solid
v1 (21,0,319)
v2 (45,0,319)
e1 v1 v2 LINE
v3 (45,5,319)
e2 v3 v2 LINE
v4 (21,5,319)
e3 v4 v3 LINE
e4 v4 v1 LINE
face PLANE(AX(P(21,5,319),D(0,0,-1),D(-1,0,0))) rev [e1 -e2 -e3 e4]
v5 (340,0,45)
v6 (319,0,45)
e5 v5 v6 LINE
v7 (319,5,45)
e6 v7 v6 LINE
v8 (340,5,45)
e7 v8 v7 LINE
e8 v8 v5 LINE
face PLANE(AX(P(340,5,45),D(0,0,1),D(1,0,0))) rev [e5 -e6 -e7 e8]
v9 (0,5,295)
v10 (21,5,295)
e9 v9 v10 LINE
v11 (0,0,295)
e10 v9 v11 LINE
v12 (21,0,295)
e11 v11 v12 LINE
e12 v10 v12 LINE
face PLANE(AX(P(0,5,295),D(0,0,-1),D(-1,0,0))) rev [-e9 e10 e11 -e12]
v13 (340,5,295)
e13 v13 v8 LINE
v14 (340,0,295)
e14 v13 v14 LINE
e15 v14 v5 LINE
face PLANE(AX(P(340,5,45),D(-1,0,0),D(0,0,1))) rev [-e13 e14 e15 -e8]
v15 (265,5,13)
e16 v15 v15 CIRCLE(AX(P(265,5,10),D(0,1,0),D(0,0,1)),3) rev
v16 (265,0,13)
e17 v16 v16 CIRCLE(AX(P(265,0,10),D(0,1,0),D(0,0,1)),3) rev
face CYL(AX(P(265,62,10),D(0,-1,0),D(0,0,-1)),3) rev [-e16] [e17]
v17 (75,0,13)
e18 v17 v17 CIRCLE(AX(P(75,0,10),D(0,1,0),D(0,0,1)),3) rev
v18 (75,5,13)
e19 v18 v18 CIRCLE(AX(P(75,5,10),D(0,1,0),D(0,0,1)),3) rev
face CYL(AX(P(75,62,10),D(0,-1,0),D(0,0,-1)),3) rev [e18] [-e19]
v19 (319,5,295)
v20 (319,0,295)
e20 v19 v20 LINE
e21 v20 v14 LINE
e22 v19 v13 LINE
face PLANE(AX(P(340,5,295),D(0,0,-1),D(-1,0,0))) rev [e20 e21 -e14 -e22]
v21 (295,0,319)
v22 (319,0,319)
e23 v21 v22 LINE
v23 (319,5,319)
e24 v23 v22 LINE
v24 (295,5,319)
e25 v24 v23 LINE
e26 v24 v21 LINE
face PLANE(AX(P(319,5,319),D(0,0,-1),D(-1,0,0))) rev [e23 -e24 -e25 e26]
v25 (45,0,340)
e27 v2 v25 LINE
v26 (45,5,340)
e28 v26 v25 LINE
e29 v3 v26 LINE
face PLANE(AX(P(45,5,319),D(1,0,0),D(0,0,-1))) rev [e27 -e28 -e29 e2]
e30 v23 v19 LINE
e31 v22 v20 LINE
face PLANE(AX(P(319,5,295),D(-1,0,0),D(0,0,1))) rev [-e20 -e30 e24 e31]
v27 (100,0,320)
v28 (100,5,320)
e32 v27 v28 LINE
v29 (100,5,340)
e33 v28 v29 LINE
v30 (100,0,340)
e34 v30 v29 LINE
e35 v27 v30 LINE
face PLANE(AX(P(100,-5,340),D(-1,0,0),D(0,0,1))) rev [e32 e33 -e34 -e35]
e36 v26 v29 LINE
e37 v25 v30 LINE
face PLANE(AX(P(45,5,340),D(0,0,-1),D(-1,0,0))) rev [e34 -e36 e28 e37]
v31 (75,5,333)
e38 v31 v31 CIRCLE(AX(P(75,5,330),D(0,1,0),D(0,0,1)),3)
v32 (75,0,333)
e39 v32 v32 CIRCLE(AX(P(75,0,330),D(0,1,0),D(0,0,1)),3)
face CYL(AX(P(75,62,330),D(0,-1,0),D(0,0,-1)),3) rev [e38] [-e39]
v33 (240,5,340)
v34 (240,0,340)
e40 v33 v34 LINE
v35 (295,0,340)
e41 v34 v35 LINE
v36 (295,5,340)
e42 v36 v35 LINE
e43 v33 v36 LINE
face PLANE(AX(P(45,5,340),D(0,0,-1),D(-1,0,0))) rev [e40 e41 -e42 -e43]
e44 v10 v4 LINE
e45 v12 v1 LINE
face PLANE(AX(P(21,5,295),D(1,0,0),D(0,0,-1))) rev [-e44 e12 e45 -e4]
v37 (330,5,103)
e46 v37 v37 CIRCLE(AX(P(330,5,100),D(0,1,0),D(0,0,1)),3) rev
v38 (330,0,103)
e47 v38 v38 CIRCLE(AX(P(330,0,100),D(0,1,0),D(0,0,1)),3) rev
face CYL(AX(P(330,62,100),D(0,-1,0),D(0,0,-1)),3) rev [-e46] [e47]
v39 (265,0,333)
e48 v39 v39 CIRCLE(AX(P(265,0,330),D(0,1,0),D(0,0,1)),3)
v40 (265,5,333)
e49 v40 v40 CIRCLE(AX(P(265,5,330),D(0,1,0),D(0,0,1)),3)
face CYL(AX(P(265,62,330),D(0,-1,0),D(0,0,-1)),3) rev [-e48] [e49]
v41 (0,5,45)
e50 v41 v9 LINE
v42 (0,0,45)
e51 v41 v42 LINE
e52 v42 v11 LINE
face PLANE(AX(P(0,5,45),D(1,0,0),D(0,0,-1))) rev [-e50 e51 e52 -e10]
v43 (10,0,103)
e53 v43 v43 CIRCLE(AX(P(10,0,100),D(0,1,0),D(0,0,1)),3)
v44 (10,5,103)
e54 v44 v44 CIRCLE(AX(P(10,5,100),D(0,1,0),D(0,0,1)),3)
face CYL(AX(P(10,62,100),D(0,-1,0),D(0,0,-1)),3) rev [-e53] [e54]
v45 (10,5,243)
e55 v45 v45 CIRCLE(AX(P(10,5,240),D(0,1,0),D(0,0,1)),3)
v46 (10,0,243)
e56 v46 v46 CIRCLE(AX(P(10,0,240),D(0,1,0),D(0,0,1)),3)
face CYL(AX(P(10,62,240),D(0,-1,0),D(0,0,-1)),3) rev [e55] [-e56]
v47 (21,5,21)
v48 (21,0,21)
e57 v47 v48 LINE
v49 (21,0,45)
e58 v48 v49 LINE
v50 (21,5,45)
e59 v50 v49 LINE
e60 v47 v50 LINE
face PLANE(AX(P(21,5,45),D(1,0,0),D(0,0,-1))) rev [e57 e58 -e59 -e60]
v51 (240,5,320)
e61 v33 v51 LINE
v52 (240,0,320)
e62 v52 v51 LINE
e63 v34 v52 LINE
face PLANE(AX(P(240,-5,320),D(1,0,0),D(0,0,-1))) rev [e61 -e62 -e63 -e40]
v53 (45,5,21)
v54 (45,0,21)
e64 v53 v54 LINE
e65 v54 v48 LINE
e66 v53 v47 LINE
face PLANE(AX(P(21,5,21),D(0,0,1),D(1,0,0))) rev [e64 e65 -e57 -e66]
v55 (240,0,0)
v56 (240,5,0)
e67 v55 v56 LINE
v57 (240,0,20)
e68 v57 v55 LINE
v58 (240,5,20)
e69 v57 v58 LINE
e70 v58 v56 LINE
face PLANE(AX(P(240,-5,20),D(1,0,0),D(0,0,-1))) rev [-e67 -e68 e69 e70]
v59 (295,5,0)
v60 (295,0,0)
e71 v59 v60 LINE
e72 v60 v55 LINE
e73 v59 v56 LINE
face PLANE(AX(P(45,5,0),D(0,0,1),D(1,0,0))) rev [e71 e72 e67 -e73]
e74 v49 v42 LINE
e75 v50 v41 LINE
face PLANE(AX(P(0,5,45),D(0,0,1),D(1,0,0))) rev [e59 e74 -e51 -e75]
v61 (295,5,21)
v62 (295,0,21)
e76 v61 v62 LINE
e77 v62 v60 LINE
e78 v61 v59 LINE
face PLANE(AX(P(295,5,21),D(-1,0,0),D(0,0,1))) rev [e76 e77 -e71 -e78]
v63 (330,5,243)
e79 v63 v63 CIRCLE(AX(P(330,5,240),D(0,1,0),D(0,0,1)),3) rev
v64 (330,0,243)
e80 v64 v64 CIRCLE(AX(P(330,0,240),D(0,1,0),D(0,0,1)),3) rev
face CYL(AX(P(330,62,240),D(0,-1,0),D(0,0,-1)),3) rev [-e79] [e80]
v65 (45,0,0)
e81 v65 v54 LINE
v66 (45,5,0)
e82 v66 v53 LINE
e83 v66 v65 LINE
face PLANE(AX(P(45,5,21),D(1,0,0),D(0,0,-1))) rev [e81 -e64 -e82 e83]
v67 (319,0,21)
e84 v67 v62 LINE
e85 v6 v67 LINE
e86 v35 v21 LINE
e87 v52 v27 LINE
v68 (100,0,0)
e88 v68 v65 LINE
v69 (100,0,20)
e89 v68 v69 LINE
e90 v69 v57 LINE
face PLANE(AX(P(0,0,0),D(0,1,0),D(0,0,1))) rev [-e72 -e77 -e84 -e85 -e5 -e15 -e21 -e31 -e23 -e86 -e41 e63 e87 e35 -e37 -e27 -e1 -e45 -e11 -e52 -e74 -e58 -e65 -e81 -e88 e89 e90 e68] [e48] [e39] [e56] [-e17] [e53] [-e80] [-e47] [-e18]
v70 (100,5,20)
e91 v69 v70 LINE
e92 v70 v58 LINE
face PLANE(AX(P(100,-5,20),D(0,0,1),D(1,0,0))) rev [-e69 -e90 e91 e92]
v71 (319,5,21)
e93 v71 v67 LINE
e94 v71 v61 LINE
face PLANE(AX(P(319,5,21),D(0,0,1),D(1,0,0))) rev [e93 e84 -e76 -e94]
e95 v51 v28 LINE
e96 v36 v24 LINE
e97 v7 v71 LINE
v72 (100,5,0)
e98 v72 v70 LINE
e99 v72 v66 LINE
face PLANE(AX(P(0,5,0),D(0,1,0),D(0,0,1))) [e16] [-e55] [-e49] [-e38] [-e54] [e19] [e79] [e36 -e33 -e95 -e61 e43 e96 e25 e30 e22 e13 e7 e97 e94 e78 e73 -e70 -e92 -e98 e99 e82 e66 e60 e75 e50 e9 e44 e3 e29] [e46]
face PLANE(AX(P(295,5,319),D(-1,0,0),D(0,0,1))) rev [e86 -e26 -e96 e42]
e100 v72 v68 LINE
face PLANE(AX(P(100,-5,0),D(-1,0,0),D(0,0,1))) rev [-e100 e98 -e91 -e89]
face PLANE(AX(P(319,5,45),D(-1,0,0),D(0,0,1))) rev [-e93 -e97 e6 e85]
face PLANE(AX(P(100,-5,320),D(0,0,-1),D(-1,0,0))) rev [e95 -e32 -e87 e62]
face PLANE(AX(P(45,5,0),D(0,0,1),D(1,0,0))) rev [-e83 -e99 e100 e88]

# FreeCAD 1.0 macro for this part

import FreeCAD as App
import Part
import Sketcher
Q = App.Units.Quantity


def add_polygon(sketch, points):
    """Adds a closed chain of lines whose ends are joined by coincident constraints."""
    first, n = sketch.GeometryCount, len(points)
    for a, b in zip(points, points[1:] + points[:1]):
        sketch.addGeometry(Part.LineSegment(App.Vector(*a, 0), App.Vector(*b, 0)), False)
    for i in range(n):
        sketch.addConstraint(Sketcher.Constraint("Coincident", first + i, 2, first + (i + 1) % n, 1))

doc = App.newDocument("Part")
body = doc.addObject("PartDesign::Body", "Body")

sketch1 = body.newObject("Sketcher::SketchObject", "Sketch")
sketch1.AttachmentSupport = (doc.getObject("XZ_Plane"), [""])
sketch1.MapMode = "FlatFace"
add_polygon(sketch1, [(21, 45), (0, 45), (0, 295), (21, 295), (21, 319), (45, 319), (45, 340), (295, 340), (295, 319), (319, 319), (319, 295), (340, 295), (340, 45), (319, 45), (319, 21), (295, 21), (295, 0), (45, 0), (45, 21), (21, 21)])
sketch1.addConstraint([
    Sketcher.Constraint("Horizontal", 0),
    Sketcher.Constraint("Vertical", 1),
    Sketcher.Constraint("Horizontal", 2),
    Sketcher.Constraint("Vertical", 3),
    Sketcher.Constraint("Horizontal", 4),
    Sketcher.Constraint("Vertical", 5),
    Sketcher.Constraint("Horizontal", 6),
    Sketcher.Constraint("Vertical", 7),
    Sketcher.Constraint("Horizontal", 8),
    Sketcher.Constraint("Vertical", 9),
    Sketcher.Constraint("Horizontal", 10),
    Sketcher.Constraint("Vertical", 11),
    Sketcher.Constraint("Horizontal", 12),
    Sketcher.Constraint("Vertical", 13),
    Sketcher.Constraint("Horizontal", 14),
    Sketcher.Constraint("Vertical", 15),
    Sketcher.Constraint("Horizontal", 16),
    Sketcher.Constraint("Vertical", 17),
    Sketcher.Constraint("Horizontal", 18),
    Sketcher.Constraint("Vertical", 19),
    Sketcher.Constraint("PointOnObject", 0, 2, -2),
    Sketcher.Constraint("PointOnObject", 15, 2, -1),
    Sketcher.Constraint("Horizontal", 4, 2, 7, 2),
    Sketcher.Constraint("Horizontal", 2, 2, 9, 2),
    Sketcher.Constraint("Horizontal", 0, 2, 11, 2),
    Sketcher.Constraint("Horizontal", 14, 2, 17, 2),
    Sketcher.Constraint("Vertical", 9, 2, 12, 2),
    Sketcher.Constraint("Vertical", 7, 2, 14, 2),
    Sketcher.Constraint("Vertical", 5, 2, 16, 2),
    Sketcher.Constraint("Vertical", 3, 2, 18, 2),
    Sketcher.Constraint("Equal", 4, 8),
    Sketcher.Constraint("Equal", 2, 10),
    Sketcher.Constraint("Equal", 16, 1),
    Sketcher.Constraint("Equal", 18, 3),
    Sketcher.Constraint("Equal", 12, 5),
    Sketcher.Constraint("Equal", 9, 13),
    Sketcher.Constraint("Equal", 7, 15),
    Sketcher.Constraint("DistanceX", 0, 2, 0, 1, Q("21 mm")),
    Sketcher.Constraint("DistanceX", 4, 1, 4, 2, Q("24 mm")),
    Sketcher.Constraint("DistanceX", 6, 1, 6, 2, Q("250 mm")),
])
pad1 = body.newObject("PartDesign::Pad", "Pad")
pad1.Profile = sketch1
pad1.Length = 5
pad1.Reversed = True

sketch2 = body.newObject("Sketcher::SketchObject", "Sketch001")
sketch2.AttachmentSupport = (doc.getObject("XZ_Plane"), [""])
sketch2.MapMode = "FlatFace"
sketch2.AttachmentOffset = App.Placement(App.Vector(0, 0, -5), App.Rotation())
sketch2.addGeometry([
    Part.Circle(App.Vector(75, 10, 0), App.Vector(0, 0, 1), 3),
    Part.Circle(App.Vector(265, 10, 0), App.Vector(0, 0, 1), 3),
    Part.Circle(App.Vector(265, 330, 0), App.Vector(0, 0, 1), 3),
    Part.Circle(App.Vector(75, 330, 0), App.Vector(0, 0, 1), 3),
    Part.Circle(App.Vector(10, 240, 0), App.Vector(0, 0, 1), 3),
    Part.Circle(App.Vector(10, 100, 0), App.Vector(0, 0, 1), 3),
    Part.Circle(App.Vector(330, 240, 0), App.Vector(0, 0, 1), 3),
    Part.Circle(App.Vector(330, 100, 0), App.Vector(0, 0, 1), 3),
], False)
sketch2.addConstraint([
    Sketcher.Constraint("Equal", 0, 1),
    Sketcher.Constraint("Equal", 1, 2),
    Sketcher.Constraint("Equal", 2, 3),
    Sketcher.Constraint("Equal", 3, 4),
    Sketcher.Constraint("Equal", 4, 5),
    Sketcher.Constraint("Equal", 5, 6),
    Sketcher.Constraint("Equal", 6, 7),
    Sketcher.Constraint("Horizontal", 0, 3, 1, 3),
    Sketcher.Constraint("Horizontal", 2, 3, 3, 3),
    Sketcher.Constraint("Horizontal", 4, 3, 6, 3),
    Sketcher.Constraint("Horizontal", 5, 3, 7, 3),
    Sketcher.Constraint("Vertical", 1, 3, 2, 3),
    Sketcher.Constraint("Vertical", 0, 3, 3, 3),
    Sketcher.Constraint("Vertical", 4, 3, 5, 3),
    Sketcher.Constraint("Vertical", 6, 3, 7, 3),
    Sketcher.Constraint("Diameter", 0, Q("6 mm")),
    Sketcher.Constraint("DistanceX", -1, 1, 0, 3, Q("75 mm")),
    Sketcher.Constraint("DistanceY", -1, 1, 0, 3, Q("10 mm")),
    Sketcher.Constraint("DistanceX", -1, 1, 1, 3, Q("265 mm")),
    Sketcher.Constraint("DistanceY", -1, 1, 2, 3, Q("330 mm")),
    Sketcher.Constraint("DistanceX", -1, 1, 4, 3, Q("10 mm")),
    Sketcher.Constraint("DistanceY", -1, 1, 4, 3, Q("240 mm")),
    Sketcher.Constraint("DistanceY", -1, 1, 5, 3, Q("100 mm")),
    Sketcher.Constraint("DistanceX", -1, 1, 6, 3, Q("330 mm")),
])
pocket1 = body.newObject("PartDesign::Pocket", "Pocket")
pocket1.Profile = sketch2
pocket1.Type = "ThroughAll"
pocket1.Midplane = True

sketch3 = body.newObject("Sketcher::SketchObject", "Sketch002")
sketch3.AttachmentSupport = (doc.getObject("XZ_Plane"), [""])
sketch3.MapMode = "FlatFace"
sketch3.AttachmentOffset = App.Placement(App.Vector(0, 0, -5), App.Rotation())
add_polygon(sketch3, [(100, 0), (100, 20), (240, 20), (240, 0)])
add_polygon(sketch3, [(100, 320), (100, 340), (240, 340), (240, 320)])
sketch3.addConstraint([
    Sketcher.Constraint("Vertical", 0),
    Sketcher.Constraint("Horizontal", 1),
    Sketcher.Constraint("Vertical", 2),
    Sketcher.Constraint("Horizontal", 3),
    Sketcher.Constraint("Vertical", 4),
    Sketcher.Constraint("Horizontal", 5),
    Sketcher.Constraint("Vertical", 6),
    Sketcher.Constraint("Horizontal", 7),
    Sketcher.Constraint("PointOnObject", 2, 2, -1),
    Sketcher.Constraint("Vertical", 3, 2, 4, 2),
    Sketcher.Constraint("Vertical", 2, 2, 5, 2),
    Sketcher.Constraint("Equal", 2, 4),
    Sketcher.Constraint("DistanceX", 1, 1, 1, 2, Q("140 mm")),
    Sketcher.Constraint("DistanceY", 0, 1, 0, 2, Q("20 mm")),
    Sketcher.Constraint("DistanceX", -1, 1, 0, 2, Q("100 mm")),
    Sketcher.Constraint("DistanceY", -1, 1, 4, 2, Q("340 mm")),
])
pocket2 = body.newObject("PartDesign::Pocket", "Pocket001")
pocket2.Profile = sketch3
pocket2.Length = 10
pocket2.Reversed = True

doc.recompute()
